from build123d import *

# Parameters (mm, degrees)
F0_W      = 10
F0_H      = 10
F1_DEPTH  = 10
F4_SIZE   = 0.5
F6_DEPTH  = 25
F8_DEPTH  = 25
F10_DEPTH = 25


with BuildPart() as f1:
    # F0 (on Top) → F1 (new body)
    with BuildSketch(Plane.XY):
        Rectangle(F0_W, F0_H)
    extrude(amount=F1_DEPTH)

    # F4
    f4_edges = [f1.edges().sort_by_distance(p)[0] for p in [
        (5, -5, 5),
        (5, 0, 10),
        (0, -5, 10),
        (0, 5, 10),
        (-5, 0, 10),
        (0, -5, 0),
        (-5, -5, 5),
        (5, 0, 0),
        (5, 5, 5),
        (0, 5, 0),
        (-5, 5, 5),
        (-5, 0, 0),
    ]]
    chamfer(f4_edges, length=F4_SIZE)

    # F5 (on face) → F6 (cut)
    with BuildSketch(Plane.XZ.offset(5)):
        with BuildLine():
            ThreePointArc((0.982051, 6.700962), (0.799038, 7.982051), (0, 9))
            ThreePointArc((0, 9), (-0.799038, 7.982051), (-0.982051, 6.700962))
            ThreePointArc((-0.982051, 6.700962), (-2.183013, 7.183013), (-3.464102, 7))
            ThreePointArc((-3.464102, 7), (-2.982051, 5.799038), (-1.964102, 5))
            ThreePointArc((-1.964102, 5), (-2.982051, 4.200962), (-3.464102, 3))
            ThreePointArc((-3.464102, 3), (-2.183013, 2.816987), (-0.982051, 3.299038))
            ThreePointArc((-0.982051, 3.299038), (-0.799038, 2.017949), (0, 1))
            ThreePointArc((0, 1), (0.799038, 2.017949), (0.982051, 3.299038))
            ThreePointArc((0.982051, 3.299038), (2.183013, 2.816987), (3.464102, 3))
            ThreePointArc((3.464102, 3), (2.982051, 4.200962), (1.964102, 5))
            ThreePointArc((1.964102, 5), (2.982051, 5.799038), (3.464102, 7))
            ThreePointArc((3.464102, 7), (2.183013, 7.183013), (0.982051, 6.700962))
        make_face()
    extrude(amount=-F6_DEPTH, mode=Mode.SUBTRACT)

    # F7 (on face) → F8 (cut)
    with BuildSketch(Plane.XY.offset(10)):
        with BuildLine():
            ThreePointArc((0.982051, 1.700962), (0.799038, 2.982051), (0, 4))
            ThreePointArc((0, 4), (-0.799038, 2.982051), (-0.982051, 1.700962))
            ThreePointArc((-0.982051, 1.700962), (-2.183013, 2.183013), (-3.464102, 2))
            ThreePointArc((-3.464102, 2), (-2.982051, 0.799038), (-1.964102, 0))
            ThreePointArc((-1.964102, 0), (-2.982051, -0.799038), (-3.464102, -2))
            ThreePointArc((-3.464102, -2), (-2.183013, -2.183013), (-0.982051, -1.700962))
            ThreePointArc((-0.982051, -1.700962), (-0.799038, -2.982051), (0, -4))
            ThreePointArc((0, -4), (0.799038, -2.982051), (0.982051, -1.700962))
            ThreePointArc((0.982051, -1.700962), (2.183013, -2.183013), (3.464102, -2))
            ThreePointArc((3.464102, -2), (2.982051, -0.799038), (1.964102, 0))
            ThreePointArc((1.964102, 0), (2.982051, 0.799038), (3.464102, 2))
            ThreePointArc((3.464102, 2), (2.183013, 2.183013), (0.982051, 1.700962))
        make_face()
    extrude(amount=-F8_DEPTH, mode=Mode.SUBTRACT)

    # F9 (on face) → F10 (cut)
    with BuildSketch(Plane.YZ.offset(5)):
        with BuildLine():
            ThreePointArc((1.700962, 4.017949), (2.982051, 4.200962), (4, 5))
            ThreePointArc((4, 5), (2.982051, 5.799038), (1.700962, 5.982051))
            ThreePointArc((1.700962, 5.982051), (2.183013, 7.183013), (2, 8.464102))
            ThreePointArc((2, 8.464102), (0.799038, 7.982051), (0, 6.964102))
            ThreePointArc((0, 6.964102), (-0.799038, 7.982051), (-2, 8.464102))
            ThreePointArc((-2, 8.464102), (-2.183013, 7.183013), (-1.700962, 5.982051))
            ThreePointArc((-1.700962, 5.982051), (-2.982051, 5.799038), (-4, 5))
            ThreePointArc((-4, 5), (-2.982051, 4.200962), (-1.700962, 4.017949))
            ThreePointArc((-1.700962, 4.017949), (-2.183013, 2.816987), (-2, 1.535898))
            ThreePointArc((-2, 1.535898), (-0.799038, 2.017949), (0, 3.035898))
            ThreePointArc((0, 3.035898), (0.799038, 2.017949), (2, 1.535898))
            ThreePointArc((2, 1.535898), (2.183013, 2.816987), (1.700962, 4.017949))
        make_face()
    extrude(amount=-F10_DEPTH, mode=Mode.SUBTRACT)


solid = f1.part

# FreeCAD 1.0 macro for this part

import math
import FreeCAD as App
import Part
import Sketcher
from FreeCAD import Vector


def add_polygon(sketch, points):
    """Adds a closed chain of lines whose ends are joined by coincident constraints."""
    first, n = sketch.GeometryCount, len(points)
    for a, b in zip(points, points[1:] + points[:1]):
        sketch.addGeometry(Part.LineSegment(App.Vector(*a, 0), App.Vector(*b, 0)), False)
    for i in range(n):
        sketch.addConstraint(Sketcher.Constraint("Coincident", first + i, 2, first + (i + 1) % n, 1))

doc = App.newDocument("Part")
params = doc.addObject("Spreadsheet::Sheet", "Params")
for row, (alias, value) in enumerate([
    ("sketch1_width", "10 mm"),
    ("pad1_length", "10 mm"),
    ("chamfer_size", "0.5 mm"),
    ("sketch2_radius", "2.500001 mm"),
    ("pocket1_length", "25 mm"),
    ("sketch3_radius", "2.500001 mm"),
    ("pocket2_length", "25 mm"),
    ("sketch4_radius", "2.500001 mm"),
    ("pocket3_length", "25 mm"),
], start=1):
    params.set(f"A{row}", alias)
    params.set(f"B{row}", "=" + value)
    params.setAlias(f"B{row}", alias)

body = doc.addObject("PartDesign::Body", "Body")

# Sketch on XY plane
sketch1 = body.newObject("Sketcher::SketchObject", "Sketch")
sketch1.AttachmentSupport = (doc.getObject("XY_Plane"), [""])
sketch1.MapMode = "FlatFace"
add_polygon(sketch1, [(-5, 5), (-5, -5), (5, -5), (5, 5)])  # lines 0-3
sketch1.addConstraint([
    Sketcher.Constraint("Vertical", 0),
    Sketcher.Constraint("Horizontal", 1),
    Sketcher.Constraint("Vertical", 2),
    Sketcher.Constraint("Horizontal", 3),
    Sketcher.Constraint("Symmetric", 0, 2, 2, 2, -1, 1),
    Sketcher.Constraint("Equal", 3, 0),
    Sketcher.Constraint("DistanceX", 1, 1, 1, 2, 10.0),
])
sketch1.setExpression("Constraints[10]", "Params.sketch1_width")
pad1 = body.newObject("PartDesign::Pad", "Pad")
pad1.Profile = sketch1
pad1.setExpression("Length", "Params.pad1_length")
doc.recompute()

chamfer = body.newObject("PartDesign::Chamfer", "Chamfer")
chamfer.Base = (pad1, ["Edge1"])
chamfer.UseAllEdges = True
chamfer.setExpression("Size", "Params.chamfer_size")

# Sketch on XZ plane
sketch2 = body.newObject("Sketcher::SketchObject", "Sketch001")
sketch2.AttachmentSupport = (doc.getObject("XZ_Plane"), [""])
sketch2.MapMode = "FlatFace"
sketch2.AttachmentOffset = App.Placement(Vector(0, 0, 5), App.Rotation())
sketch2.addGeometry([
    Part.ArcOfCircle(Part.Circle(Vector(-1.5, 7, 0), Vector(0, 0, 1), 2.5), math.radians(-7), math.radians(53)),  # 0
    Part.ArcOfCircle(Part.Circle(Vector(1.5, 7, 0), Vector(0, 0, 1), 2.5), math.radians(127), math.radians(187)),  # 1
    Part.ArcOfCircle(Part.Circle(Vector(-2.5, 4.7, 0), Vector(0, 0, 1), 2.5), math.radians(53), math.radians(113)),  # 2
    Part.ArcOfCircle(Part.Circle(Vector(-1, 7.3, 0), Vector(0, 0, 1), 2.5), math.radians(-173), math.radians(-113)),  # 3
    Part.ArcOfCircle(Part.Circle(Vector(-1, 2.7, 0), Vector(0, 0, 1), 2.5), math.radians(113), math.radians(173)),  # 4
    Part.ArcOfCircle(Part.Circle(Vector(-2.5, 5.3, 0), Vector(0, 0, 1), 2.5), math.radians(-113), math.radians(-53)),  # 5
    Part.ArcOfCircle(Part.Circle(Vector(1.5, 3, 0), Vector(0, 0, 1), 2.5), math.radians(173), math.radians(233)),  # 6
    Part.ArcOfCircle(Part.Circle(Vector(-1.5, 3, 0), Vector(0, 0, 1), 2.5), math.radians(-53), math.radians(7)),  # 7
    Part.ArcOfCircle(Part.Circle(Vector(2.5, 5.3, 0), Vector(0, 0, 1), 2.5), math.radians(-127), math.radians(-67)),  # 8
    Part.ArcOfCircle(Part.Circle(Vector(1, 2.7, 0), Vector(0, 0, 1), 2.5), math.radians(7), math.radians(67)),  # 9
    Part.ArcOfCircle(Part.Circle(Vector(1, 7.3, 0), Vector(0, 0, 1), 2.5), math.radians(-67), math.radians(-7)),  # 10
    Part.ArcOfCircle(Part.Circle(Vector(2.5, 4.7, 0), Vector(0, 0, 1), 2.5), math.radians(67), math.radians(127)),  # 11
], False)
sketch2.addConstraint([
    Sketcher.Constraint("Coincident", 0, 2, 1, 1),
    Sketcher.Constraint("Coincident", 1, 2, 2, 1),
    Sketcher.Constraint("Coincident", 2, 2, 3, 1),
    Sketcher.Constraint("Coincident", 3, 2, 4, 1),
    Sketcher.Constraint("Coincident", 4, 2, 5, 1),
    Sketcher.Constraint("Coincident", 5, 2, 6, 1),
    Sketcher.Constraint("Coincident", 6, 2, 7, 1),
    Sketcher.Constraint("Coincident", 7, 2, 8, 1),
    Sketcher.Constraint("Coincident", 8, 2, 9, 1),
    Sketcher.Constraint("Coincident", 9, 2, 10, 1),
    Sketcher.Constraint("Coincident", 10, 2, 11, 1),
    Sketcher.Constraint("Coincident", 11, 2, 0, 1),
    Sketcher.Constraint("Equal", 0, 1),
    Sketcher.Constraint("Equal", 2, 3),
    Sketcher.Constraint("Equal", 3, 4),
    Sketcher.Constraint("Equal", 4, 5),
    Sketcher.Constraint("Equal", 4, 6),
    Sketcher.Constraint("Equal", 6, 7),
    Sketcher.Constraint("Equal", 5, 8),
    Sketcher.Constraint("Equal", 8, 9),
    Sketcher.Constraint("Equal", 9, 10),
    Sketcher.Constraint("Equal", 10, 11),
    Sketcher.Constraint("Symmetric", 0, 3, 1, 3, -2),
    Sketcher.Constraint("Symmetric", 6, 3, 7, 3, -2),
    Sketcher.Constraint("Symmetric", 5, 3, 8, 3, -2),
    Sketcher.Constraint("Symmetric", 4, 3, 9, 3, -2),
    Sketcher.Constraint("Symmetric", 3, 3, 10, 3, -2),
    Sketcher.Constraint("Symmetric", 2, 3, 11, 3, -2),
    Sketcher.Constraint("Horizontal", 1, 3, 2, 2),
    Sketcher.Constraint("Horizontal", 7, 3, 4, 2),
    Sketcher.Constraint("Vertical", 3, 3, 4, 3),
    Sketcher.Constraint("Vertical", 2, 3, 5, 3),
    Sketcher.Constraint("Vertical", 1, 3, 6, 3),
    Sketcher.Constraint("Vertical", 4, 3, 1, 2),
    Sketcher.Constraint("Vertical", 2, 2, 4, 2),
    Sketcher.Constraint("Vertical", 1, 2, 5, 2),
    Sketcher.Constraint("Radius", 0, 2.500001),
    Sketcher.Constraint("DistanceY", -1, 1, 0, 3, 7.0),
    Sketcher.Constraint("DistanceY", -1, 1, 6, 3, 3.0),
    Sketcher.Constraint("DistanceY", -1, 1, 0, 2, 9.0),
    Sketcher.Constraint("DistanceY", 4, 3, 2, 3, 2.000002),
    Sketcher.Constraint("DistanceY", 2, 3, 1, 2, 1.999999),
])
sketch2.setExpression("Constraints[36]", "Params.sketch2_radius")
pocket1 = body.newObject("PartDesign::Pocket", "Pocket")
pocket1.Profile = sketch2
pocket1.setExpression("Length", "Params.pocket1_length")

# Sketch on XY plane
sketch3 = body.newObject("Sketcher::SketchObject", "Sketch002")
sketch3.AttachmentSupport = (doc.getObject("XY_Plane"), [""])
sketch3.MapMode = "FlatFace"
sketch3.AttachmentOffset = App.Placement(Vector(0, 0, 10), App.Rotation())
sketch3.addGeometry([
    Part.ArcOfCircle(Part.Circle(Vector(-1.5, 2, 0), Vector(0, 0, 1), 2.5), math.radians(-7), math.radians(53)),  # 0
    Part.ArcOfCircle(Part.Circle(Vector(1.5, 2, 0), Vector(0, 0, 1), 2.5), math.radians(127), math.radians(187)),  # 1
    Part.ArcOfCircle(Part.Circle(Vector(-2.5, -0.3, 0), Vector(0, 0, 1), 2.5), math.radians(53), math.radians(113)),  # 2
    Part.ArcOfCircle(Part.Circle(Vector(-1, 2.3, 0), Vector(0, 0, 1), 2.5), math.radians(-173), math.radians(-113)),  # 3
    Part.ArcOfCircle(Part.Circle(Vector(-1, -2.3, 0), Vector(0, 0, 1), 2.5), math.radians(113), math.radians(173)),  # 4
    Part.ArcOfCircle(Part.Circle(Vector(-2.5, 0.3, 0), Vector(0, 0, 1), 2.5), math.radians(-113), math.radians(-53)),  # 5
    Part.ArcOfCircle(Part.Circle(Vector(1.5, -2, 0), Vector(0, 0, 1), 2.5), math.radians(173), math.radians(233)),  # 6
    Part.ArcOfCircle(Part.Circle(Vector(-1.5, -2, 0), Vector(0, 0, 1), 2.5), math.radians(-53), math.radians(7)),  # 7
    Part.ArcOfCircle(Part.Circle(Vector(2.5, 0.3, 0), Vector(0, 0, 1), 2.5), math.radians(-127), math.radians(-67)),  # 8
    Part.ArcOfCircle(Part.Circle(Vector(1, -2.3, 0), Vector(0, 0, 1), 2.5), math.radians(7), math.radians(67)),  # 9
    Part.ArcOfCircle(Part.Circle(Vector(1, 2.3, 0), Vector(0, 0, 1), 2.5), math.radians(-67), math.radians(-7)),  # 10
    Part.ArcOfCircle(Part.Circle(Vector(2.5, -0.3, 0), Vector(0, 0, 1), 2.5), math.radians(67), math.radians(127)),  # 11
], False)
sketch3.addConstraint([
    Sketcher.Constraint("Coincident", 0, 2, 1, 1),
    Sketcher.Constraint("Coincident", 1, 2, 2, 1),
    Sketcher.Constraint("Coincident", 2, 2, 3, 1),
    Sketcher.Constraint("Coincident", 3, 2, 4, 1),
    Sketcher.Constraint("Coincident", 4, 2, 5, 1),
    Sketcher.Constraint("Coincident", 5, 2, 6, 1),
    Sketcher.Constraint("Coincident", 6, 2, 7, 1),
    Sketcher.Constraint("Coincident", 7, 2, 8, 1),
    Sketcher.Constraint("Coincident", 8, 2, 9, 1),
    Sketcher.Constraint("Coincident", 9, 2, 10, 1),
    Sketcher.Constraint("Coincident", 10, 2, 11, 1),
    Sketcher.Constraint("Coincident", 11, 2, 0, 1),
    Sketcher.Constraint("Equal", 0, 1),
    Sketcher.Constraint("Equal", 2, 3),
    Sketcher.Constraint("Equal", 3, 4),
    Sketcher.Constraint("Equal", 4, 5),
    Sketcher.Constraint("Equal", 4, 6),
    Sketcher.Constraint("Equal", 6, 7),
    Sketcher.Constraint("Equal", 5, 8),
    Sketcher.Constraint("Equal", 8, 9),
    Sketcher.Constraint("Equal", 9, 10),
    Sketcher.Constraint("Equal", 10, 11),
    Sketcher.Constraint("Symmetric", 0, 3, 6, 3, -1, 1),
    Sketcher.Constraint("Symmetric", 1, 3, 7, 3, -1, 1),
    Sketcher.Constraint("Symmetric", 2, 3, 8, 3, -1, 1),
    Sketcher.Constraint("Symmetric", 3, 3, 9, 3, -1, 1),
    Sketcher.Constraint("Symmetric", 4, 3, 10, 3, -1, 1),
    Sketcher.Constraint("Symmetric", 5, 3, 11, 3, -1, 1),
    Sketcher.Constraint("Symmetric", 0, 3, 1, 3, -2),
    Sketcher.Constraint("Symmetric", 5, 3, 8, 3, -2),
    Sketcher.Constraint("Symmetric", 4, 3, 9, 3, -2),
    Sketcher.Constraint("Horizontal", 1, 3, 2, 2),
    Sketcher.Constraint("Vertical", 4, 3, 1, 2),
    Sketcher.Constraint("Vertical", 1, 2, 5, 2),
    Sketcher.Constraint("Radius", 0, 2.500001),
    Sketcher.Constraint("DistanceY", -1, 1, 0, 3, 2.0),
    Sketcher.Constraint("DistanceY", -1, 1, 0, 2, 4.0),
    Sketcher.Constraint("DistanceY", 4, 3, 2, 3, 2.000002),
    Sketcher.Constraint("DistanceY", 2, 3, 1, 2, 1.999999),
])
sketch3.setExpression("Constraints[34]", "Params.sketch3_radius")
pocket2 = body.newObject("PartDesign::Pocket", "Pocket001")
pocket2.Profile = sketch3
pocket2.setExpression("Length", "Params.pocket2_length")

# Sketch on YZ plane
sketch4 = body.newObject("Sketcher::SketchObject", "Sketch003")
sketch4.AttachmentSupport = (doc.getObject("YZ_Plane"), [""])
sketch4.MapMode = "FlatFace"
sketch4.AttachmentOffset = App.Placement(Vector(0, 0, 5), App.Rotation())
sketch4.addGeometry([
    Part.ArcOfCircle(Part.Circle(Vector(2, 6.5, 0), Vector(0, 0, 1), 2.5), math.radians(-97), math.radians(-37)),  # 0
    Part.ArcOfCircle(Part.Circle(Vector(2, 3.5, 0), Vector(0, 0, 1), 2.5), math.radians(37), math.radians(97)),  # 1
    Part.ArcOfCircle(Part.Circle(Vector(-0.3, 7.5, 0), Vector(0, 0, 1), 2.5), math.radians(-37), math.radians(23)),  # 2
    Part.ArcOfCircle(Part.Circle(Vector(2.3, 6, 0), Vector(0, 0, 1), 2.5), math.radians(97), math.radians(157)),  # 3
    Part.ArcOfCircle(Part.Circle(Vector(-2.3, 6, 0), Vector(0, 0, 1), 2.5), math.radians(23), math.radians(83)),  # 4
    Part.ArcOfCircle(Part.Circle(Vector(0.3, 7.5, 0), Vector(0, 0, 1), 2.5), math.radians(157), math.radians(217)),  # 5
    Part.ArcOfCircle(Part.Circle(Vector(-2, 3.5, 0), Vector(0, 0, 1), 2.5), math.radians(83), math.radians(143)),  # 6
    Part.ArcOfCircle(Part.Circle(Vector(-2, 6.5, 0), Vector(0, 0, 1), 2.5), math.radians(-143), math.radians(-83)),  # 7
    Part.ArcOfCircle(Part.Circle(Vector(0.3, 2.5, 0), Vector(0, 0, 1), 2.5), math.radians(143), math.radians(203)),  # 8
    Part.ArcOfCircle(Part.Circle(Vector(-2.3, 4, 0), Vector(0, 0, 1), 2.5), math.radians(-83), math.radians(-23)),  # 9
    Part.ArcOfCircle(Part.Circle(Vector(2.3, 4, 0), Vector(0, 0, 1), 2.5), math.radians(-157), math.radians(-97)),  # 10
    Part.ArcOfCircle(Part.Circle(Vector(-0.3, 2.5, 0), Vector(0, 0, 1), 2.5), math.radians(-23), math.radians(37)),  # 11
], False)
sketch4.addConstraint([
    Sketcher.Constraint("Coincident", 0, 2, 1, 1),
    Sketcher.Constraint("Coincident", 1, 2, 2, 1),
    Sketcher.Constraint("Coincident", 2, 2, 3, 1),
    Sketcher.Constraint("Coincident", 3, 2, 4, 1),
    Sketcher.Constraint("Coincident", 4, 2, 5, 1),
    Sketcher.Constraint("Coincident", 5, 2, 6, 1),
    Sketcher.Constraint("Coincident", 6, 2, 7, 1),
    Sketcher.Constraint("Coincident", 7, 2, 8, 1),
    Sketcher.Constraint("Coincident", 8, 2, 9, 1),
    Sketcher.Constraint("Coincident", 9, 2, 10, 1),
    Sketcher.Constraint("Coincident", 10, 2, 11, 1),
    Sketcher.Constraint("Coincident", 11, 2, 0, 1),
    Sketcher.Constraint("Equal", 0, 1),
    Sketcher.Constraint("Equal", 2, 3),
    Sketcher.Constraint("Equal", 3, 4),
    Sketcher.Constraint("Equal", 4, 5),
    Sketcher.Constraint("Equal", 4, 6),
    Sketcher.Constraint("Equal", 6, 7),
    Sketcher.Constraint("Equal", 5, 8),
    Sketcher.Constraint("Equal", 8, 9),
    Sketcher.Constraint("Equal", 9, 10),
    Sketcher.Constraint("Equal", 10, 11),
    Sketcher.Constraint("Symmetric", 3, 3, 4, 3, -2),
    Sketcher.Constraint("Symmetric", 2, 3, 5, 3, -2),
    Sketcher.Constraint("Symmetric", 1, 3, 6, 3, -2),
    Sketcher.Constraint("Symmetric", 0, 3, 7, 3, -2),
    Sketcher.Constraint("Symmetric", 9, 3, 10, 3, -2),
    Sketcher.Constraint("Symmetric", 8, 3, 11, 3, -2),
    Sketcher.Constraint("Horizontal", 4, 3, 1, 2),
    Sketcher.Constraint("Horizontal", 1, 2, 5, 2),
    Sketcher.Constraint("Horizontal", 10, 3, 7, 2),
    Sketcher.Constraint("Vertical", 0, 3, 1, 3),
    Sketcher.Constraint("Vertical", 5, 3, 8, 3),
    Sketcher.Constraint("Vertical", 4, 3, 9, 3),
    Sketcher.Constraint("Vertical", 1, 3, 2, 2),
    Sketcher.Constraint("Vertical", 5, 2, 7, 2),
    Sketcher.Constraint("Radius", 0, 2.500001),
    Sketcher.Constraint("DistanceX", -1, 1, 0, 3, 2.0),
    Sketcher.Constraint("DistanceX", -1, 1, 0, 2, 4.0),
    Sketcher.Constraint("DistanceY", -1, 1, 0, 2, 5.0),
    Sketcher.Constraint("DistanceX", 4, 3, 2, 3, 2.000002),
    Sketcher.Constraint("DistanceX", 2, 3, 1, 2, 1.999999),
])
sketch4.setExpression("Constraints[36]", "Params.sketch4_radius")
pocket3 = body.newObject("PartDesign::Pocket", "Pocket002")
pocket3.Profile = sketch4
pocket3.setExpression("Length", "Params.pocket3_length")

doc.recompute()
